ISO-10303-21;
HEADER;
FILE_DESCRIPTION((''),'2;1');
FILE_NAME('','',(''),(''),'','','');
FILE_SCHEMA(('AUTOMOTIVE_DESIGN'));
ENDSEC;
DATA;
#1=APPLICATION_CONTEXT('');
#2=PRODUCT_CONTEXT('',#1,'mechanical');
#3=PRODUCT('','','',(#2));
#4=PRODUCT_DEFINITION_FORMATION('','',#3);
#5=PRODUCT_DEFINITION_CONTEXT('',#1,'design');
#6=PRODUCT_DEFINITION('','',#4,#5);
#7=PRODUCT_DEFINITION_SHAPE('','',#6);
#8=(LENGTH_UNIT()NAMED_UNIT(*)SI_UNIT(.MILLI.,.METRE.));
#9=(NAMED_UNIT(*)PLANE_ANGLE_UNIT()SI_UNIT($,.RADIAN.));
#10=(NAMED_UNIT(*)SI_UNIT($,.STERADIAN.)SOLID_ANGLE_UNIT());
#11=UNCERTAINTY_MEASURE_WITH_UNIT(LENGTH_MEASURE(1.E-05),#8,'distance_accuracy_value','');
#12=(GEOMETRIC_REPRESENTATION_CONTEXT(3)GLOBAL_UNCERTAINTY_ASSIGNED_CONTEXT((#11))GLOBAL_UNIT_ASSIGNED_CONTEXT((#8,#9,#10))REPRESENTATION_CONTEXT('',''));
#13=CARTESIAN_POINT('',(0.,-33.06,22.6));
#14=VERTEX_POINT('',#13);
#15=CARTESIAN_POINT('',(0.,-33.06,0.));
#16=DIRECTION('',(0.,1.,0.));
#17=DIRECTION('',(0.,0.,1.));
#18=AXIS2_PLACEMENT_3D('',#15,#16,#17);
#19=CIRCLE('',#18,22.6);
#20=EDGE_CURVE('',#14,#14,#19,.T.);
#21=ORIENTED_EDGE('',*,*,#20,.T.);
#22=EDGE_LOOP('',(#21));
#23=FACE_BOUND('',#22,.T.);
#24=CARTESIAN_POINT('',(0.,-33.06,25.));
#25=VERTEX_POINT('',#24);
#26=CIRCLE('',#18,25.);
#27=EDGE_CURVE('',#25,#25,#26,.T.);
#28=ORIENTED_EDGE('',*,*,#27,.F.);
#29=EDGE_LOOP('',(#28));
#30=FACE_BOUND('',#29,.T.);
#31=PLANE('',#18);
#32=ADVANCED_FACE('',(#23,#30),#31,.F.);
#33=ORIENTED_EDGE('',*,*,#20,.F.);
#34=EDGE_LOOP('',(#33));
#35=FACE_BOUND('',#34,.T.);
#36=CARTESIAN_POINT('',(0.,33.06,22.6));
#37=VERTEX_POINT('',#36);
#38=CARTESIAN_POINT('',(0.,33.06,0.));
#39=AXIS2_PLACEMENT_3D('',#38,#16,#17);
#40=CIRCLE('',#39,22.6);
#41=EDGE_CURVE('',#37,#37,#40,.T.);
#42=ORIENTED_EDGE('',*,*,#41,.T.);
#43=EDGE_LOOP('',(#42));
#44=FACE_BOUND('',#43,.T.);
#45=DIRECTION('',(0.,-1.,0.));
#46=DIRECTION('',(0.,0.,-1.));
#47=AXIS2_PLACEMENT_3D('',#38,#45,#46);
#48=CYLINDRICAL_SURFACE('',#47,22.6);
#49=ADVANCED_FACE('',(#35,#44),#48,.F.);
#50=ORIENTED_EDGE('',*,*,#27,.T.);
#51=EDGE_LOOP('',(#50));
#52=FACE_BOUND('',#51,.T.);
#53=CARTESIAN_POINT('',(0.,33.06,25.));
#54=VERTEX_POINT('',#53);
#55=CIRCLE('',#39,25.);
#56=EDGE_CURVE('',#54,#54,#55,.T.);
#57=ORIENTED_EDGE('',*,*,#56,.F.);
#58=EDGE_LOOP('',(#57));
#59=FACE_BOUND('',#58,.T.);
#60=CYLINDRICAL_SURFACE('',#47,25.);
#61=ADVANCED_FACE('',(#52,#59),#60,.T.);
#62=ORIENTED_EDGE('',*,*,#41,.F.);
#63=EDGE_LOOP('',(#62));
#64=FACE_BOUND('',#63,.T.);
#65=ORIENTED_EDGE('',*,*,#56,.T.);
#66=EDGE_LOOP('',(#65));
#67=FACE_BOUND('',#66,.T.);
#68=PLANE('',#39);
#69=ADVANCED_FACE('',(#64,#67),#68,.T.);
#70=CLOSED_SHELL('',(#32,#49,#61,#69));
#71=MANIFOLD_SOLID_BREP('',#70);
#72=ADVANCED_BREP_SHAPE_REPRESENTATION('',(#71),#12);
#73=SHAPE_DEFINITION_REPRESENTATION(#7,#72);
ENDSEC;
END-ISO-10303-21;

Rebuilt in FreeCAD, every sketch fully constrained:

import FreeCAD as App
import Part
import Sketcher
Q = App.Units.Quantity

doc = App.newDocument("Part")
body = doc.addObject("PartDesign::Body", "Body")

sketch1 = doc.addObject("Sketcher::SketchObject", "Sketch")
body.addObject(sketch1)
sketch1.AttachmentSupport = (doc.XZ_Plane, [""])
sketch1.MapMode = "FlatFace"
sketch1.addGeometry(Part.Circle(App.Vector(0, 0, 0), App.Vector(0, 0, 1), 25), False)
sketch1.addGeometry(Part.Circle(App.Vector(0, 0, 0), App.Vector(0, 0, 1), 23), False)
sketch1.addConstraint(Sketcher.Constraint("Coincident", 0, 3, -1, 1))
sketch1.addConstraint(Sketcher.Constraint("Coincident", 1, 3, -1, 1))
sketch1.addConstraint(Sketcher.Constraint("Diameter", 0, Q("50 mm")))
sketch1.addConstraint(Sketcher.Constraint("Diameter", 1, Q("45.2 mm")))
pad1 = doc.addObject("PartDesign::Pad", "Pad")
body.addObject(pad1)
pad1.Profile = sketch1
pad1.Length = 66.12
pad1.Midplane = True

doc.recompute()
